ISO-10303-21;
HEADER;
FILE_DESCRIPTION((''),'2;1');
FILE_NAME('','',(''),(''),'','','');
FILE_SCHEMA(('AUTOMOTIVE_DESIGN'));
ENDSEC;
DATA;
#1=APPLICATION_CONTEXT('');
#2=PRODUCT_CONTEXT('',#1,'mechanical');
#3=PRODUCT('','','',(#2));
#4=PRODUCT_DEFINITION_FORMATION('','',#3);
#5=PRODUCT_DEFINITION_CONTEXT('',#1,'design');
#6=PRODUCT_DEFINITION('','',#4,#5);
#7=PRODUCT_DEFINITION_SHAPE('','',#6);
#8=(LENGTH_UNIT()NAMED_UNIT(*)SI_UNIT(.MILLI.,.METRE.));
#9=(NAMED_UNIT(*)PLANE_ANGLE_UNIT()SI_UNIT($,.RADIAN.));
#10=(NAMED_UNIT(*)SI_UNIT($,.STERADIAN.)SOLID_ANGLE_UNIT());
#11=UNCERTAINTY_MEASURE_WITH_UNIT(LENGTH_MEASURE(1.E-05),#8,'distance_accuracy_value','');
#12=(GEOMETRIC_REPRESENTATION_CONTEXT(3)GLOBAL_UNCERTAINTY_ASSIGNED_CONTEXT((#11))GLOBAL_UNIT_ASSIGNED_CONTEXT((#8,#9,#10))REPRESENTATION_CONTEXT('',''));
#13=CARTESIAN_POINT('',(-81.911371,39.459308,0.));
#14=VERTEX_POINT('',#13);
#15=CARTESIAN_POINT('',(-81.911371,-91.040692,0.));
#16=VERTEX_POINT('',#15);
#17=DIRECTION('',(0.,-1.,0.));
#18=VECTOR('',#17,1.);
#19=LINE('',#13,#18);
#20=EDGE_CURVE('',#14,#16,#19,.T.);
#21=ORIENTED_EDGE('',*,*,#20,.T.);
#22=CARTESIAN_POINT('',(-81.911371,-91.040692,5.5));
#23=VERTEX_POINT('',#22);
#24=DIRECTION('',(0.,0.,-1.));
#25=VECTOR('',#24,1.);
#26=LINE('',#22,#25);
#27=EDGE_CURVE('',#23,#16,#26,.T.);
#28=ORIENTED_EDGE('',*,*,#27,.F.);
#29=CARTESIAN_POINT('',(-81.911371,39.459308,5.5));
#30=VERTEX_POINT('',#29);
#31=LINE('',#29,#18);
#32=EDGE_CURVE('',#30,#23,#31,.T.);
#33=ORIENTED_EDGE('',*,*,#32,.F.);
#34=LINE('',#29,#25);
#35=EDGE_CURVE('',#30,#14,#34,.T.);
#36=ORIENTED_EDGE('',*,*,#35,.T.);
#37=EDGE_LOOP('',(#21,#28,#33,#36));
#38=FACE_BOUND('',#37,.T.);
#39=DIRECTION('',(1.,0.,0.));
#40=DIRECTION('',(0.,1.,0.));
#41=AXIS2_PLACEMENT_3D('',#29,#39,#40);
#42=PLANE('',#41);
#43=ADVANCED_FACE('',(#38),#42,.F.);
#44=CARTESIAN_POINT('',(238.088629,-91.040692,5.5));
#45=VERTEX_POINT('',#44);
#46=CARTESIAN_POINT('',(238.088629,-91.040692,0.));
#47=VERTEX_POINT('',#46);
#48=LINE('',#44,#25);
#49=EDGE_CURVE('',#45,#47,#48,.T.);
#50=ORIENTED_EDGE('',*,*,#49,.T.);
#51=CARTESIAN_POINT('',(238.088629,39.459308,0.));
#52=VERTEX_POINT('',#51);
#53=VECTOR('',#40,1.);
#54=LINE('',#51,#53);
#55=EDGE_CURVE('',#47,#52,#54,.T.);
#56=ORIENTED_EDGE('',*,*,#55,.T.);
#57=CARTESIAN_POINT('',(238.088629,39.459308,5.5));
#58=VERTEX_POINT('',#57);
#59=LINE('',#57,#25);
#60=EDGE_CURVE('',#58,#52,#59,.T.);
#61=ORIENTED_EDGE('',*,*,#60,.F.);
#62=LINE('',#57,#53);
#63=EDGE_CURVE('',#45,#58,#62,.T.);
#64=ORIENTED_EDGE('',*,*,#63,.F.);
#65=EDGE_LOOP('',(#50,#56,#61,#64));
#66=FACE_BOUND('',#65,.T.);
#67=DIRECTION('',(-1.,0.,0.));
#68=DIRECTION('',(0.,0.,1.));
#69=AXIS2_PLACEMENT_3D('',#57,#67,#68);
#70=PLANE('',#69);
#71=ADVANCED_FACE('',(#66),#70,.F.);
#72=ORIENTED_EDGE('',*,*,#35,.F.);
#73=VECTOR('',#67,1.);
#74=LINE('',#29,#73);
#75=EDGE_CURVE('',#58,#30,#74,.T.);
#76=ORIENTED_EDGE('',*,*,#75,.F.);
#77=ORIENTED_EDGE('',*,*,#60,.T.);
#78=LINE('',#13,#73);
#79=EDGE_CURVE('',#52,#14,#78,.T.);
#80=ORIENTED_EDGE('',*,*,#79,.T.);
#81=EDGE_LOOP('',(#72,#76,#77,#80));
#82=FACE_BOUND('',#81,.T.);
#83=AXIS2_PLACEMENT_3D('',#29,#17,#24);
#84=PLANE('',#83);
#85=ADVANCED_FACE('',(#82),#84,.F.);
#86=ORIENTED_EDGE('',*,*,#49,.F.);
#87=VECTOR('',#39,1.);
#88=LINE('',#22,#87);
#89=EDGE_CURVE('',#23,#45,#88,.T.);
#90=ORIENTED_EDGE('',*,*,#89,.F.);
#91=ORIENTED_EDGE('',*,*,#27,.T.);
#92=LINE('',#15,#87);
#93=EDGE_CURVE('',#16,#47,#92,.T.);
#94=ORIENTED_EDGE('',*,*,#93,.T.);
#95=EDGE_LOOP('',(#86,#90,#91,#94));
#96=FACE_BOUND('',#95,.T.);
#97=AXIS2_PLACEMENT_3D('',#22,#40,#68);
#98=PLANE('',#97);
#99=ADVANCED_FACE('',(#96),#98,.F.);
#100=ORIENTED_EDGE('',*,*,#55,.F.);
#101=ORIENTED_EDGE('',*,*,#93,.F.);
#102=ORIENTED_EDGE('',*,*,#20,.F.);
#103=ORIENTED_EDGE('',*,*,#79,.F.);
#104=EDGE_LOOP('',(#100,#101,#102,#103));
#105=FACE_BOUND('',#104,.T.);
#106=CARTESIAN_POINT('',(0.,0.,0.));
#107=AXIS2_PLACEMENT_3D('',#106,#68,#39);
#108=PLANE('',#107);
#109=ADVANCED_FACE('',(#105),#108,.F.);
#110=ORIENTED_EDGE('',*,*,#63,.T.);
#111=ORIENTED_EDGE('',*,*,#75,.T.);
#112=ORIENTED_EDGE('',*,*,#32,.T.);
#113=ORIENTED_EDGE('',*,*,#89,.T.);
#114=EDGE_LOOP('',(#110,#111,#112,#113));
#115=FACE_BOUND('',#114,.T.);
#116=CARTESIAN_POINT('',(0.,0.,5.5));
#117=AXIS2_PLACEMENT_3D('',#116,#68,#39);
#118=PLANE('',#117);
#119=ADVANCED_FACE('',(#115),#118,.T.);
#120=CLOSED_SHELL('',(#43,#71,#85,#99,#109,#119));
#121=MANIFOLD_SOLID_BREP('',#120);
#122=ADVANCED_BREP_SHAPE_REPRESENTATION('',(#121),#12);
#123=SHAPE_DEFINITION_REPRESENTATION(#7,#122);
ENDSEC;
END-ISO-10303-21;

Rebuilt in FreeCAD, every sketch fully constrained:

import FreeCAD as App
import Part
import Sketcher


def add_polygon(sketch, points):
    """Adds a closed chain of lines whose ends are joined by coincident constraints."""
    first, n = sketch.GeometryCount, len(points)
    for a, b in zip(points, points[1:] + points[:1]):
        sketch.addGeometry(Part.LineSegment(App.Vector(*a, 0), App.Vector(*b, 0)), False)
    for i in range(n):
        sketch.addConstraint(Sketcher.Constraint("Coincident", first + i, 2, first + (i + 1) % n, 1))

doc = App.newDocument("Part")
body = doc.addObject("PartDesign::Body", "Body")

# Sketch on XY plane
sketch1 = doc.addObject("Sketcher::SketchObject", "Sketch")
body.addObject(sketch1)
sketch1.AttachmentSupport = (doc.XY_Plane, [""])
sketch1.MapMode = "FlatFace"
add_polygon(sketch1, [(-82, 39), (-82, -91), (238, -91), (238, 39)])  # lines 0-3
sketch1.addConstraint([
    Sketcher.Constraint("Vertical", 0),
    Sketcher.Constraint("Horizontal", 1),
    Sketcher.Constraint("Vertical", 2),
    Sketcher.Constraint("Horizontal", 3),
    Sketcher.Constraint("DistanceX", 1, 1, 1, 2, 320.0),
    Sketcher.Constraint("DistanceY", 0, 2, 0, 1, 130.5),
    Sketcher.Constraint("DistanceX", 0, 2, -1, 1, 81.911371),
    Sketcher.Constraint("DistanceY", 0, 2, -1, 1, 91.040692),
])
pad1 = doc.addObject("PartDesign::Pad", "Pad")
body.addObject(pad1)
pad1.Profile = sketch1
pad1.Length = 5.5

doc.recompute()
